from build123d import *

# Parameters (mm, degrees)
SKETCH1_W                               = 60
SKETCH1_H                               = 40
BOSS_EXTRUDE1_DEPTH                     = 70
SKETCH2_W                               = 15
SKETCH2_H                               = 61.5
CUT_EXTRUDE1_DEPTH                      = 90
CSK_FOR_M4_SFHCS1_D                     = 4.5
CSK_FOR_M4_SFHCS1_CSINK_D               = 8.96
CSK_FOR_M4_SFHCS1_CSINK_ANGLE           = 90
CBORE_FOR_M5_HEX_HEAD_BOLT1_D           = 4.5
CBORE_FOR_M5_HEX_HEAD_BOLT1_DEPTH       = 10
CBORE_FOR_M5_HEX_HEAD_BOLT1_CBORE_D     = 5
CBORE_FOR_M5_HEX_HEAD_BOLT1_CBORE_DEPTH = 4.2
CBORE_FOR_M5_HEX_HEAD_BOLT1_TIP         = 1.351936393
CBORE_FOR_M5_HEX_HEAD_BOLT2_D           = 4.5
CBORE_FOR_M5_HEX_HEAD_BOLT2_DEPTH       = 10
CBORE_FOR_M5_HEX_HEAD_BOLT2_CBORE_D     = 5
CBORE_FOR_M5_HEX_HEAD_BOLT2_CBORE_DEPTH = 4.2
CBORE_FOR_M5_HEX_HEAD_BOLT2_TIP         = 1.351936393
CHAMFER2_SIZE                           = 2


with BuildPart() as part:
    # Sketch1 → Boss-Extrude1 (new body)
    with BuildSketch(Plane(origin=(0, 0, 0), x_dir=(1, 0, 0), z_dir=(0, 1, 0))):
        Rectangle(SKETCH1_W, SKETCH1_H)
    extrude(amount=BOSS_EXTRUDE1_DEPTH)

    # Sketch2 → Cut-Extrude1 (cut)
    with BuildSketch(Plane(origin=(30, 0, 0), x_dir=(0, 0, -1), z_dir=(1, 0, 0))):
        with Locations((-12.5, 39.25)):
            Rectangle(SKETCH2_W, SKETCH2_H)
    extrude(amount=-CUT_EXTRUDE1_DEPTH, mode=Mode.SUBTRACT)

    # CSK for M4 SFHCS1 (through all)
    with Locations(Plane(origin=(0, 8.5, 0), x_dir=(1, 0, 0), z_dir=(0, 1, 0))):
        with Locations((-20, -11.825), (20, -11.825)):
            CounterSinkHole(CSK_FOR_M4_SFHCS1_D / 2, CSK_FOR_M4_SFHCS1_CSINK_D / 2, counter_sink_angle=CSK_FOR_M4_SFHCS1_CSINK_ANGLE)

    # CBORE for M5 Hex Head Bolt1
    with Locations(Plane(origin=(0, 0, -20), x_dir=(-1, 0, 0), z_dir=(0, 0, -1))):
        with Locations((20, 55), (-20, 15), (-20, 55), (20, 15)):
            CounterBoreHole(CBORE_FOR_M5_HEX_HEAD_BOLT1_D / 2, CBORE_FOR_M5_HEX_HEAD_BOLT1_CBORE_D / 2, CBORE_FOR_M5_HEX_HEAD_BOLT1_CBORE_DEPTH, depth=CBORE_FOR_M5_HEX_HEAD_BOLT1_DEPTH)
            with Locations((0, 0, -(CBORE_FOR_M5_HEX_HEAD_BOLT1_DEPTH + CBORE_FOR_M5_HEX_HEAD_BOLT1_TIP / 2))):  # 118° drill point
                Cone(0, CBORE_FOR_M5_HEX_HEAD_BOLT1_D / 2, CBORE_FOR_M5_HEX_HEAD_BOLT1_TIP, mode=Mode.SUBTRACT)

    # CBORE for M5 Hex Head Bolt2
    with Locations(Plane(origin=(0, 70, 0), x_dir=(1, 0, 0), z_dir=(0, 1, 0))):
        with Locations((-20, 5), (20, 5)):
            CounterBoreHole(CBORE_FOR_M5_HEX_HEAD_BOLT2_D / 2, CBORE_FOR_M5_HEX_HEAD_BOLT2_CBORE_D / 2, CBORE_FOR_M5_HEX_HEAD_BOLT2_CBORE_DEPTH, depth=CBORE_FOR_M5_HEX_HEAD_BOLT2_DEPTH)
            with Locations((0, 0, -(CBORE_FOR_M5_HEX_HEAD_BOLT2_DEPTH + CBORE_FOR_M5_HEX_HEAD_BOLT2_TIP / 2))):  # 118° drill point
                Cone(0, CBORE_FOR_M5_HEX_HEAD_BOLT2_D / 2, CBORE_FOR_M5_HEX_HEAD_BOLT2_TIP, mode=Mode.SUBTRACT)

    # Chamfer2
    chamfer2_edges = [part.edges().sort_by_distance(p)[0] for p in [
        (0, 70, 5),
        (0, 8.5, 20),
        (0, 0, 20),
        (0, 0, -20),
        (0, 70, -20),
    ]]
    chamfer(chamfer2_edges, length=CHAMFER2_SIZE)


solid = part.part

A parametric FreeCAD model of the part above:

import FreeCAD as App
import Part
import Sketcher

V = App.Vector
Q = App.Units.Quantity


def edges_at(feature, points):
    """Names of the edges that pass closest to the given points."""
    edges = feature.Shape.Edges
    near = lambda p: min(range(len(edges)), key=lambda i: edges[i].distToShape(Part.Vertex(*p))[0])
    return sorted({f"Edge{near(p) + 1}" for p in points})


def add_polygon(sketch, points):
    """Adds a closed chain of lines whose ends are joined by coincident constraints."""
    first, n = sketch.GeometryCount, len(points)
    for a, b in zip(points, points[1:] + points[:1]):
        sketch.addGeometry(Part.LineSegment(App.Vector(*a, 0), App.Vector(*b, 0)), False)
    for i in range(n):
        sketch.addConstraint(Sketcher.Constraint("Coincident", first + i, 2, first + (i + 1) % n, 1))

doc = App.newDocument("Part")
body = doc.addObject("PartDesign::Body", "Body")

# Sketch on XZ plane
sketch1 = body.newObject("Sketcher::SketchObject", "Sketch")
sketch1.AttachmentSupport = (doc.getObject("XZ_Plane"), [""])
sketch1.MapMode = "FlatFace"
add_polygon(sketch1, [(-30, -20), (-30, 20), (30, 20), (30, -20)])  # lines 0-3
sketch1.addConstraint([
    Sketcher.Constraint("Vertical", 0),
    Sketcher.Constraint("Horizontal", 1),
    Sketcher.Constraint("Vertical", 2),
    Sketcher.Constraint("Horizontal", 3),
    Sketcher.Constraint("Symmetric", 0, 2, 2, 2, -1, 1),
    Sketcher.Constraint("DistanceX", 1, 1, 1, 2, Q("60 mm")),
    Sketcher.Constraint("DistanceY", 0, 1, 0, 2, Q("40 mm")),
])
pad1 = body.newObject("PartDesign::Pad", "Pad")
pad1.Profile = sketch1
pad1.Length = 70
pad1.Reversed = True

# Sketch on YZ plane
sketch2 = body.newObject("Sketcher::SketchObject", "Sketch001")
sketch2.AttachmentSupport = (doc.getObject("YZ_Plane"), [""])
sketch2.MapMode = "FlatFace"
sketch2.AttachmentOffset = App.Placement(V(0, 0, 30), App.Rotation())
add_polygon(sketch2, [(70, 20), (8, 20), (8, 5), (70, 5)])  # lines 0-3
sketch2.addConstraint([
    Sketcher.Constraint("Horizontal", 0),
    Sketcher.Constraint("Vertical", 1),
    Sketcher.Constraint("Horizontal", 2),
    Sketcher.Constraint("Vertical", 3),
    Sketcher.Constraint("DistanceY", 1, 2, 1, 1, Q("15 mm")),
    Sketcher.Constraint("DistanceX", 0, 2, 0, 1, Q("61.5 mm")),
    Sketcher.Constraint("DistanceY", -1, 1, 0, 2, Q("20 mm")),
    Sketcher.Constraint("DistanceX", -1, 1, 2, 2, Q("70 mm")),
])
pocket1 = body.newObject("PartDesign::Pocket", "Pocket")
pocket1.Profile = sketch2
pocket1.Length = 90

# Sketch on XZ plane
sketch3 = body.newObject("Sketcher::SketchObject", "Sketch002")
sketch3.AttachmentSupport = (doc.getObject("XZ_Plane"), [""])
sketch3.MapMode = "FlatFace"
sketch3.AttachmentOffset = App.Placement(V(0, 0, -8.5), App.Rotation())
sketch3.addGeometry([
    Part.Circle(V(-20, 11.8, 0), V(0, 0, 1), 2.2),
    Part.Circle(V(20, 11.8, 0), V(0, 0, 1), 2.2),
], False)
sketch3.addConstraint([
    Sketcher.Constraint("Equal", 0, 1),
    Sketcher.Constraint("Symmetric", 0, 3, 1, 3, -2),
    Sketcher.Constraint("Diameter", 0, Q("4.5 mm")),
    Sketcher.Constraint("DistanceX", 0, 3, -1, 1, Q("20 mm")),
    Sketcher.Constraint("DistanceY", -1, 1, 0, 3, Q("11.825 mm")),
])
doc.recompute()
hole = body.newObject("PartDesign::Hole", "Hole")
hole.Profile = sketch3
hole.ThreadType = "None"
hole.Diameter = 4.5
hole.DepthType = "ThroughAll"
hole.HoleCutType = "Countersink"
hole.HoleCutDiameter = 8.96
hole.HoleCutCountersinkAngle = 90
hole.Reversed = True

# Sketch on XY plane
sketch4 = body.newObject("Sketcher::SketchObject", "Sketch003")
sketch4.AttachmentSupport = (doc.getObject("XY_Plane"), [""])
sketch4.MapMode = "FlatFace"
sketch4.AttachmentOffset = App.Placement(V(0, 0, -20), App.Rotation())
sketch4.addGeometry([
    Part.Circle(V(-20, 55, 0), V(0, 0, 1), 2.2),
    Part.Circle(V(20, 15, 0), V(0, 0, 1), 2.2),
    Part.Circle(V(20, 55, 0), V(0, 0, 1), 2.2),
    Part.Circle(V(-20, 15, 0), V(0, 0, 1), 2.2),
], False)
sketch4.addConstraint([
    Sketcher.Constraint("Equal", 0, 1),
    Sketcher.Constraint("Equal", 1, 2),
    Sketcher.Constraint("Equal", 2, 3),
    Sketcher.Constraint("Symmetric", 0, 3, 2, 3, -2),
    Sketcher.Constraint("Symmetric", 1, 3, 3, 3, -2),
    Sketcher.Constraint("Vertical", 1, 3, 2, 3),
    Sketcher.Constraint("Diameter", 0, Q("4.5 mm")),
    Sketcher.Constraint("DistanceX", 0, 3, -1, 1, Q("20 mm")),
    Sketcher.Constraint("DistanceY", -1, 1, 0, 3, Q("55 mm")),
    Sketcher.Constraint("DistanceY", -1, 1, 1, 3, Q("15 mm")),
])
doc.recompute()
hole2 = body.newObject("PartDesign::Hole", "Hole001")
hole2.Profile = sketch4
hole2.ThreadType = "None"
hole2.Diameter = 4.5
hole2.DepthType = "Dimension"
hole2.Depth = 10
hole2.DrillPoint = "Angled"
hole2.DrillPointAngle = 118
hole2.HoleCutType = "Counterbore"
hole2.HoleCutDiameter = 5
hole2.HoleCutDepth = 4.2
hole2.Reversed = True

# Sketch on XZ plane
sketch5 = body.newObject("Sketcher::SketchObject", "Sketch004")
sketch5.AttachmentSupport = (doc.getObject("XZ_Plane"), [""])
sketch5.MapMode = "FlatFace"
sketch5.AttachmentOffset = App.Placement(V(0, 0, -70), App.Rotation())
sketch5.addGeometry([
    Part.Circle(V(-20, -5, 0), V(0, 0, 1), 2.2),
    Part.Circle(V(20, -5, 0), V(0, 0, 1), 2.2),
], False)
sketch5.addConstraint([
    Sketcher.Constraint("Equal", 0, 1),
    Sketcher.Constraint("Symmetric", 0, 3, 1, 3, -2),
    Sketcher.Constraint("Diameter", 0, Q("4.5 mm")),
    Sketcher.Constraint("DistanceX", 0, 3, -1, 1, Q("20 mm")),
    Sketcher.Constraint("DistanceY", 0, 3, -1, 1, Q("5 mm")),
])
doc.recompute()
hole3 = body.newObject("PartDesign::Hole", "Hole002")
hole3.Profile = sketch5
hole3.ThreadType = "None"
hole3.Diameter = 4.5
hole3.DepthType = "Dimension"
hole3.Depth = 10
hole3.DrillPoint = "Angled"
hole3.DrillPointAngle = 118
hole3.HoleCutType = "Counterbore"
hole3.HoleCutDiameter = 5
hole3.HoleCutDepth = 4.2
hole3.Reversed = True
doc.recompute()

chamfer = body.newObject("PartDesign::Chamfer", "Chamfer")
chamfer.Base = (hole3, edges_at(hole3, [
    (0, 70, 5),
    (0, 8.5, 20),
    (0, 0, 20),
    (0, 0, -20),
    (0, 70, -20),
]))
chamfer.Size = 2

doc.recompute()
